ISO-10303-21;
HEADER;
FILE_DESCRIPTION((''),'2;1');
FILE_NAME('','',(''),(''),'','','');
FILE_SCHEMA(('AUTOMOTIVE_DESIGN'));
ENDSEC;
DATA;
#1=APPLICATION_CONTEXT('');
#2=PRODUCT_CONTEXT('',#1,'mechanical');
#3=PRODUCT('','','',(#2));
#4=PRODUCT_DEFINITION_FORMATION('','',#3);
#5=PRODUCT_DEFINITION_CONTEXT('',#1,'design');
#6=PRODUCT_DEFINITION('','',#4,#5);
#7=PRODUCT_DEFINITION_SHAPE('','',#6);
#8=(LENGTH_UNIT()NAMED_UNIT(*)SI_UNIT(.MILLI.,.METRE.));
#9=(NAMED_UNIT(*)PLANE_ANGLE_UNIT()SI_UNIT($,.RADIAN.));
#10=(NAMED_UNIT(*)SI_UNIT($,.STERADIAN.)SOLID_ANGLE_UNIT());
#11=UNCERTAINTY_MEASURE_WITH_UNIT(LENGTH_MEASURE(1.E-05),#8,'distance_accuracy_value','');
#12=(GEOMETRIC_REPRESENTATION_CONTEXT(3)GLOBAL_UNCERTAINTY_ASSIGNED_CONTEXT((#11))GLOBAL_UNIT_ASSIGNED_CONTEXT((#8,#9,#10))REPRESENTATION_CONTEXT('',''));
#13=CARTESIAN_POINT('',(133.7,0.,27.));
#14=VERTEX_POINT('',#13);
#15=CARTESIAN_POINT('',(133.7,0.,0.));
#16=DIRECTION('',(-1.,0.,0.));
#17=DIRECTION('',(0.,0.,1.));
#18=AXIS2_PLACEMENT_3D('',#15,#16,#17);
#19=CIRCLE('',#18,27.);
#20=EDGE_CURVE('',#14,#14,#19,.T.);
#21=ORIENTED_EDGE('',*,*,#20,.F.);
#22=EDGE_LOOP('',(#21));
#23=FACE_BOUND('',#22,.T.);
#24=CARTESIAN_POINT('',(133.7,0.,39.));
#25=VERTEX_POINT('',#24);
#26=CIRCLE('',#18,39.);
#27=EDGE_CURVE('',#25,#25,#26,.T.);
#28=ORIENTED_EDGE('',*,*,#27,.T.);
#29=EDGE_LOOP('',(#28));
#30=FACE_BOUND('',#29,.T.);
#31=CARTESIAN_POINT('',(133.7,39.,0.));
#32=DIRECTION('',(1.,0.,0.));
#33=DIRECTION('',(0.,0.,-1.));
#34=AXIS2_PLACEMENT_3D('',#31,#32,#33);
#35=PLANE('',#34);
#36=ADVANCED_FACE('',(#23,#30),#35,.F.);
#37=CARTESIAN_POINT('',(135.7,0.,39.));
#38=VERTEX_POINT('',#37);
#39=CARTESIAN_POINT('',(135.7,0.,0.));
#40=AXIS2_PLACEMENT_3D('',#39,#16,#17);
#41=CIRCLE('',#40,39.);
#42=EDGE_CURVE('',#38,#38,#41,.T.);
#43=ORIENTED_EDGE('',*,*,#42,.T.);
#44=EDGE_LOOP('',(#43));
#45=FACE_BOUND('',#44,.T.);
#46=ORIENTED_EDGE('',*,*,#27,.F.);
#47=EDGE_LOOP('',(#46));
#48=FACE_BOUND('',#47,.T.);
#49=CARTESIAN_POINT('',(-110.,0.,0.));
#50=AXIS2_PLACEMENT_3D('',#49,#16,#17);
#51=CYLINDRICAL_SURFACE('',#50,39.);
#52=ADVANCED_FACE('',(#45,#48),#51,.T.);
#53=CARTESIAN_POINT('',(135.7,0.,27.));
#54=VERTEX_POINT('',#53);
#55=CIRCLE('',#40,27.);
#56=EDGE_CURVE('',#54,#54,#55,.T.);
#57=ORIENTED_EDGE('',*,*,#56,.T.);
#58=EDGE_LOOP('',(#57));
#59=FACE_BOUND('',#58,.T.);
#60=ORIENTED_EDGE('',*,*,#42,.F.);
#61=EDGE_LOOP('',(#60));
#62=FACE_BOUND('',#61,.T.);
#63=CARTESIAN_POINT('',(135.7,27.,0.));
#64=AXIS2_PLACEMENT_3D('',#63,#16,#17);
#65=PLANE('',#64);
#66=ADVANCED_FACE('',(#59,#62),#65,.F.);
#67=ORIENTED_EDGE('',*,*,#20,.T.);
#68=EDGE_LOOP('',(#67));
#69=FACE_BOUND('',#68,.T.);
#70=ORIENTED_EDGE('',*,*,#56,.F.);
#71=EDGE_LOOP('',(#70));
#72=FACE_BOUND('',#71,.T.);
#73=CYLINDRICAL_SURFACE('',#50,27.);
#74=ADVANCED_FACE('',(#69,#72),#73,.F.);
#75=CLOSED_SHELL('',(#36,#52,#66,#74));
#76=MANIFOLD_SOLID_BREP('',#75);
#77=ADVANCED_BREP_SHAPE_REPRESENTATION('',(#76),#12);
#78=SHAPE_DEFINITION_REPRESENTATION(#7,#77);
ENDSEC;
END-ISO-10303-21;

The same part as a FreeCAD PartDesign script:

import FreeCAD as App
import Part
import Sketcher
from FreeCAD import Vector
Q = App.Units.Quantity

doc = App.newDocument("Part")
params = doc.addObject("Spreadsheet::Sheet", "Params")
for row, (alias, value) in enumerate([
    ("sketch1_width", "2 mm"),
    ("sketch1_height", "12 mm"),
    ("revolution_angle", "360 deg"),
], start=1):
    params.set(f"A{row}", alias)
    params.set(f"B{row}", "=" + value)
    params.setAlias(f"B{row}", alias)

body = doc.addObject("PartDesign::Body", "Body")

# Sketch on XY plane
sketch1 = body.newObject("Sketcher::SketchObject", "Sketch")
sketch1.AttachmentSupport = (doc.getObject("XY_Plane"), [""])
sketch1.MapMode = "FlatFace"
sketch1.addGeometry([
    Part.LineSegment(Vector(133.7, 39, 0), Vector(133.7, 27, 0)),
    Part.LineSegment(Vector(133.7, 27, 0), Vector(135.7, 27, 0)),
    Part.LineSegment(Vector(135.7, 27, 0), Vector(135.7, 39, 0)),
    Part.LineSegment(Vector(135.7, 39, 0), Vector(133.7, 39, 0)),
], False)
sketch1.addConstraint([
    Sketcher.Constraint("Coincident", 0, 2, 1, 1),
    Sketcher.Constraint("Coincident", 1, 2, 2, 1),
    Sketcher.Constraint("Coincident", 2, 2, 3, 1),
    Sketcher.Constraint("Coincident", 3, 2, 0, 1),
    Sketcher.Constraint("Vertical", 0),
    Sketcher.Constraint("Horizontal", 1),
    Sketcher.Constraint("Vertical", 2),
    Sketcher.Constraint("Horizontal", 3),
    Sketcher.Constraint("DistanceX", 1, 1, 1, 2, Q("2 mm")),
    Sketcher.Constraint("DistanceY", 0, 2, 0, 1, Q("12 mm")),
    Sketcher.Constraint("DistanceY", -1, 1, 0, 2, Q("27 mm")),
    Sketcher.Constraint("DistanceX", -1, 1, 0, 2, Q("133.7 mm")),
])
sketch1.setExpression("Constraints[8]", "Params.sketch1_width")
sketch1.setExpression("Constraints[9]", "Params.sketch1_height")
revolution = body.newObject("PartDesign::Revolution", "Revolution")
revolution.Profile = sketch1
revolution.ReferenceAxis = (sketch1, ["H_Axis"])
revolution.setExpression("Angle", "Params.revolution_angle")

doc.recompute()
